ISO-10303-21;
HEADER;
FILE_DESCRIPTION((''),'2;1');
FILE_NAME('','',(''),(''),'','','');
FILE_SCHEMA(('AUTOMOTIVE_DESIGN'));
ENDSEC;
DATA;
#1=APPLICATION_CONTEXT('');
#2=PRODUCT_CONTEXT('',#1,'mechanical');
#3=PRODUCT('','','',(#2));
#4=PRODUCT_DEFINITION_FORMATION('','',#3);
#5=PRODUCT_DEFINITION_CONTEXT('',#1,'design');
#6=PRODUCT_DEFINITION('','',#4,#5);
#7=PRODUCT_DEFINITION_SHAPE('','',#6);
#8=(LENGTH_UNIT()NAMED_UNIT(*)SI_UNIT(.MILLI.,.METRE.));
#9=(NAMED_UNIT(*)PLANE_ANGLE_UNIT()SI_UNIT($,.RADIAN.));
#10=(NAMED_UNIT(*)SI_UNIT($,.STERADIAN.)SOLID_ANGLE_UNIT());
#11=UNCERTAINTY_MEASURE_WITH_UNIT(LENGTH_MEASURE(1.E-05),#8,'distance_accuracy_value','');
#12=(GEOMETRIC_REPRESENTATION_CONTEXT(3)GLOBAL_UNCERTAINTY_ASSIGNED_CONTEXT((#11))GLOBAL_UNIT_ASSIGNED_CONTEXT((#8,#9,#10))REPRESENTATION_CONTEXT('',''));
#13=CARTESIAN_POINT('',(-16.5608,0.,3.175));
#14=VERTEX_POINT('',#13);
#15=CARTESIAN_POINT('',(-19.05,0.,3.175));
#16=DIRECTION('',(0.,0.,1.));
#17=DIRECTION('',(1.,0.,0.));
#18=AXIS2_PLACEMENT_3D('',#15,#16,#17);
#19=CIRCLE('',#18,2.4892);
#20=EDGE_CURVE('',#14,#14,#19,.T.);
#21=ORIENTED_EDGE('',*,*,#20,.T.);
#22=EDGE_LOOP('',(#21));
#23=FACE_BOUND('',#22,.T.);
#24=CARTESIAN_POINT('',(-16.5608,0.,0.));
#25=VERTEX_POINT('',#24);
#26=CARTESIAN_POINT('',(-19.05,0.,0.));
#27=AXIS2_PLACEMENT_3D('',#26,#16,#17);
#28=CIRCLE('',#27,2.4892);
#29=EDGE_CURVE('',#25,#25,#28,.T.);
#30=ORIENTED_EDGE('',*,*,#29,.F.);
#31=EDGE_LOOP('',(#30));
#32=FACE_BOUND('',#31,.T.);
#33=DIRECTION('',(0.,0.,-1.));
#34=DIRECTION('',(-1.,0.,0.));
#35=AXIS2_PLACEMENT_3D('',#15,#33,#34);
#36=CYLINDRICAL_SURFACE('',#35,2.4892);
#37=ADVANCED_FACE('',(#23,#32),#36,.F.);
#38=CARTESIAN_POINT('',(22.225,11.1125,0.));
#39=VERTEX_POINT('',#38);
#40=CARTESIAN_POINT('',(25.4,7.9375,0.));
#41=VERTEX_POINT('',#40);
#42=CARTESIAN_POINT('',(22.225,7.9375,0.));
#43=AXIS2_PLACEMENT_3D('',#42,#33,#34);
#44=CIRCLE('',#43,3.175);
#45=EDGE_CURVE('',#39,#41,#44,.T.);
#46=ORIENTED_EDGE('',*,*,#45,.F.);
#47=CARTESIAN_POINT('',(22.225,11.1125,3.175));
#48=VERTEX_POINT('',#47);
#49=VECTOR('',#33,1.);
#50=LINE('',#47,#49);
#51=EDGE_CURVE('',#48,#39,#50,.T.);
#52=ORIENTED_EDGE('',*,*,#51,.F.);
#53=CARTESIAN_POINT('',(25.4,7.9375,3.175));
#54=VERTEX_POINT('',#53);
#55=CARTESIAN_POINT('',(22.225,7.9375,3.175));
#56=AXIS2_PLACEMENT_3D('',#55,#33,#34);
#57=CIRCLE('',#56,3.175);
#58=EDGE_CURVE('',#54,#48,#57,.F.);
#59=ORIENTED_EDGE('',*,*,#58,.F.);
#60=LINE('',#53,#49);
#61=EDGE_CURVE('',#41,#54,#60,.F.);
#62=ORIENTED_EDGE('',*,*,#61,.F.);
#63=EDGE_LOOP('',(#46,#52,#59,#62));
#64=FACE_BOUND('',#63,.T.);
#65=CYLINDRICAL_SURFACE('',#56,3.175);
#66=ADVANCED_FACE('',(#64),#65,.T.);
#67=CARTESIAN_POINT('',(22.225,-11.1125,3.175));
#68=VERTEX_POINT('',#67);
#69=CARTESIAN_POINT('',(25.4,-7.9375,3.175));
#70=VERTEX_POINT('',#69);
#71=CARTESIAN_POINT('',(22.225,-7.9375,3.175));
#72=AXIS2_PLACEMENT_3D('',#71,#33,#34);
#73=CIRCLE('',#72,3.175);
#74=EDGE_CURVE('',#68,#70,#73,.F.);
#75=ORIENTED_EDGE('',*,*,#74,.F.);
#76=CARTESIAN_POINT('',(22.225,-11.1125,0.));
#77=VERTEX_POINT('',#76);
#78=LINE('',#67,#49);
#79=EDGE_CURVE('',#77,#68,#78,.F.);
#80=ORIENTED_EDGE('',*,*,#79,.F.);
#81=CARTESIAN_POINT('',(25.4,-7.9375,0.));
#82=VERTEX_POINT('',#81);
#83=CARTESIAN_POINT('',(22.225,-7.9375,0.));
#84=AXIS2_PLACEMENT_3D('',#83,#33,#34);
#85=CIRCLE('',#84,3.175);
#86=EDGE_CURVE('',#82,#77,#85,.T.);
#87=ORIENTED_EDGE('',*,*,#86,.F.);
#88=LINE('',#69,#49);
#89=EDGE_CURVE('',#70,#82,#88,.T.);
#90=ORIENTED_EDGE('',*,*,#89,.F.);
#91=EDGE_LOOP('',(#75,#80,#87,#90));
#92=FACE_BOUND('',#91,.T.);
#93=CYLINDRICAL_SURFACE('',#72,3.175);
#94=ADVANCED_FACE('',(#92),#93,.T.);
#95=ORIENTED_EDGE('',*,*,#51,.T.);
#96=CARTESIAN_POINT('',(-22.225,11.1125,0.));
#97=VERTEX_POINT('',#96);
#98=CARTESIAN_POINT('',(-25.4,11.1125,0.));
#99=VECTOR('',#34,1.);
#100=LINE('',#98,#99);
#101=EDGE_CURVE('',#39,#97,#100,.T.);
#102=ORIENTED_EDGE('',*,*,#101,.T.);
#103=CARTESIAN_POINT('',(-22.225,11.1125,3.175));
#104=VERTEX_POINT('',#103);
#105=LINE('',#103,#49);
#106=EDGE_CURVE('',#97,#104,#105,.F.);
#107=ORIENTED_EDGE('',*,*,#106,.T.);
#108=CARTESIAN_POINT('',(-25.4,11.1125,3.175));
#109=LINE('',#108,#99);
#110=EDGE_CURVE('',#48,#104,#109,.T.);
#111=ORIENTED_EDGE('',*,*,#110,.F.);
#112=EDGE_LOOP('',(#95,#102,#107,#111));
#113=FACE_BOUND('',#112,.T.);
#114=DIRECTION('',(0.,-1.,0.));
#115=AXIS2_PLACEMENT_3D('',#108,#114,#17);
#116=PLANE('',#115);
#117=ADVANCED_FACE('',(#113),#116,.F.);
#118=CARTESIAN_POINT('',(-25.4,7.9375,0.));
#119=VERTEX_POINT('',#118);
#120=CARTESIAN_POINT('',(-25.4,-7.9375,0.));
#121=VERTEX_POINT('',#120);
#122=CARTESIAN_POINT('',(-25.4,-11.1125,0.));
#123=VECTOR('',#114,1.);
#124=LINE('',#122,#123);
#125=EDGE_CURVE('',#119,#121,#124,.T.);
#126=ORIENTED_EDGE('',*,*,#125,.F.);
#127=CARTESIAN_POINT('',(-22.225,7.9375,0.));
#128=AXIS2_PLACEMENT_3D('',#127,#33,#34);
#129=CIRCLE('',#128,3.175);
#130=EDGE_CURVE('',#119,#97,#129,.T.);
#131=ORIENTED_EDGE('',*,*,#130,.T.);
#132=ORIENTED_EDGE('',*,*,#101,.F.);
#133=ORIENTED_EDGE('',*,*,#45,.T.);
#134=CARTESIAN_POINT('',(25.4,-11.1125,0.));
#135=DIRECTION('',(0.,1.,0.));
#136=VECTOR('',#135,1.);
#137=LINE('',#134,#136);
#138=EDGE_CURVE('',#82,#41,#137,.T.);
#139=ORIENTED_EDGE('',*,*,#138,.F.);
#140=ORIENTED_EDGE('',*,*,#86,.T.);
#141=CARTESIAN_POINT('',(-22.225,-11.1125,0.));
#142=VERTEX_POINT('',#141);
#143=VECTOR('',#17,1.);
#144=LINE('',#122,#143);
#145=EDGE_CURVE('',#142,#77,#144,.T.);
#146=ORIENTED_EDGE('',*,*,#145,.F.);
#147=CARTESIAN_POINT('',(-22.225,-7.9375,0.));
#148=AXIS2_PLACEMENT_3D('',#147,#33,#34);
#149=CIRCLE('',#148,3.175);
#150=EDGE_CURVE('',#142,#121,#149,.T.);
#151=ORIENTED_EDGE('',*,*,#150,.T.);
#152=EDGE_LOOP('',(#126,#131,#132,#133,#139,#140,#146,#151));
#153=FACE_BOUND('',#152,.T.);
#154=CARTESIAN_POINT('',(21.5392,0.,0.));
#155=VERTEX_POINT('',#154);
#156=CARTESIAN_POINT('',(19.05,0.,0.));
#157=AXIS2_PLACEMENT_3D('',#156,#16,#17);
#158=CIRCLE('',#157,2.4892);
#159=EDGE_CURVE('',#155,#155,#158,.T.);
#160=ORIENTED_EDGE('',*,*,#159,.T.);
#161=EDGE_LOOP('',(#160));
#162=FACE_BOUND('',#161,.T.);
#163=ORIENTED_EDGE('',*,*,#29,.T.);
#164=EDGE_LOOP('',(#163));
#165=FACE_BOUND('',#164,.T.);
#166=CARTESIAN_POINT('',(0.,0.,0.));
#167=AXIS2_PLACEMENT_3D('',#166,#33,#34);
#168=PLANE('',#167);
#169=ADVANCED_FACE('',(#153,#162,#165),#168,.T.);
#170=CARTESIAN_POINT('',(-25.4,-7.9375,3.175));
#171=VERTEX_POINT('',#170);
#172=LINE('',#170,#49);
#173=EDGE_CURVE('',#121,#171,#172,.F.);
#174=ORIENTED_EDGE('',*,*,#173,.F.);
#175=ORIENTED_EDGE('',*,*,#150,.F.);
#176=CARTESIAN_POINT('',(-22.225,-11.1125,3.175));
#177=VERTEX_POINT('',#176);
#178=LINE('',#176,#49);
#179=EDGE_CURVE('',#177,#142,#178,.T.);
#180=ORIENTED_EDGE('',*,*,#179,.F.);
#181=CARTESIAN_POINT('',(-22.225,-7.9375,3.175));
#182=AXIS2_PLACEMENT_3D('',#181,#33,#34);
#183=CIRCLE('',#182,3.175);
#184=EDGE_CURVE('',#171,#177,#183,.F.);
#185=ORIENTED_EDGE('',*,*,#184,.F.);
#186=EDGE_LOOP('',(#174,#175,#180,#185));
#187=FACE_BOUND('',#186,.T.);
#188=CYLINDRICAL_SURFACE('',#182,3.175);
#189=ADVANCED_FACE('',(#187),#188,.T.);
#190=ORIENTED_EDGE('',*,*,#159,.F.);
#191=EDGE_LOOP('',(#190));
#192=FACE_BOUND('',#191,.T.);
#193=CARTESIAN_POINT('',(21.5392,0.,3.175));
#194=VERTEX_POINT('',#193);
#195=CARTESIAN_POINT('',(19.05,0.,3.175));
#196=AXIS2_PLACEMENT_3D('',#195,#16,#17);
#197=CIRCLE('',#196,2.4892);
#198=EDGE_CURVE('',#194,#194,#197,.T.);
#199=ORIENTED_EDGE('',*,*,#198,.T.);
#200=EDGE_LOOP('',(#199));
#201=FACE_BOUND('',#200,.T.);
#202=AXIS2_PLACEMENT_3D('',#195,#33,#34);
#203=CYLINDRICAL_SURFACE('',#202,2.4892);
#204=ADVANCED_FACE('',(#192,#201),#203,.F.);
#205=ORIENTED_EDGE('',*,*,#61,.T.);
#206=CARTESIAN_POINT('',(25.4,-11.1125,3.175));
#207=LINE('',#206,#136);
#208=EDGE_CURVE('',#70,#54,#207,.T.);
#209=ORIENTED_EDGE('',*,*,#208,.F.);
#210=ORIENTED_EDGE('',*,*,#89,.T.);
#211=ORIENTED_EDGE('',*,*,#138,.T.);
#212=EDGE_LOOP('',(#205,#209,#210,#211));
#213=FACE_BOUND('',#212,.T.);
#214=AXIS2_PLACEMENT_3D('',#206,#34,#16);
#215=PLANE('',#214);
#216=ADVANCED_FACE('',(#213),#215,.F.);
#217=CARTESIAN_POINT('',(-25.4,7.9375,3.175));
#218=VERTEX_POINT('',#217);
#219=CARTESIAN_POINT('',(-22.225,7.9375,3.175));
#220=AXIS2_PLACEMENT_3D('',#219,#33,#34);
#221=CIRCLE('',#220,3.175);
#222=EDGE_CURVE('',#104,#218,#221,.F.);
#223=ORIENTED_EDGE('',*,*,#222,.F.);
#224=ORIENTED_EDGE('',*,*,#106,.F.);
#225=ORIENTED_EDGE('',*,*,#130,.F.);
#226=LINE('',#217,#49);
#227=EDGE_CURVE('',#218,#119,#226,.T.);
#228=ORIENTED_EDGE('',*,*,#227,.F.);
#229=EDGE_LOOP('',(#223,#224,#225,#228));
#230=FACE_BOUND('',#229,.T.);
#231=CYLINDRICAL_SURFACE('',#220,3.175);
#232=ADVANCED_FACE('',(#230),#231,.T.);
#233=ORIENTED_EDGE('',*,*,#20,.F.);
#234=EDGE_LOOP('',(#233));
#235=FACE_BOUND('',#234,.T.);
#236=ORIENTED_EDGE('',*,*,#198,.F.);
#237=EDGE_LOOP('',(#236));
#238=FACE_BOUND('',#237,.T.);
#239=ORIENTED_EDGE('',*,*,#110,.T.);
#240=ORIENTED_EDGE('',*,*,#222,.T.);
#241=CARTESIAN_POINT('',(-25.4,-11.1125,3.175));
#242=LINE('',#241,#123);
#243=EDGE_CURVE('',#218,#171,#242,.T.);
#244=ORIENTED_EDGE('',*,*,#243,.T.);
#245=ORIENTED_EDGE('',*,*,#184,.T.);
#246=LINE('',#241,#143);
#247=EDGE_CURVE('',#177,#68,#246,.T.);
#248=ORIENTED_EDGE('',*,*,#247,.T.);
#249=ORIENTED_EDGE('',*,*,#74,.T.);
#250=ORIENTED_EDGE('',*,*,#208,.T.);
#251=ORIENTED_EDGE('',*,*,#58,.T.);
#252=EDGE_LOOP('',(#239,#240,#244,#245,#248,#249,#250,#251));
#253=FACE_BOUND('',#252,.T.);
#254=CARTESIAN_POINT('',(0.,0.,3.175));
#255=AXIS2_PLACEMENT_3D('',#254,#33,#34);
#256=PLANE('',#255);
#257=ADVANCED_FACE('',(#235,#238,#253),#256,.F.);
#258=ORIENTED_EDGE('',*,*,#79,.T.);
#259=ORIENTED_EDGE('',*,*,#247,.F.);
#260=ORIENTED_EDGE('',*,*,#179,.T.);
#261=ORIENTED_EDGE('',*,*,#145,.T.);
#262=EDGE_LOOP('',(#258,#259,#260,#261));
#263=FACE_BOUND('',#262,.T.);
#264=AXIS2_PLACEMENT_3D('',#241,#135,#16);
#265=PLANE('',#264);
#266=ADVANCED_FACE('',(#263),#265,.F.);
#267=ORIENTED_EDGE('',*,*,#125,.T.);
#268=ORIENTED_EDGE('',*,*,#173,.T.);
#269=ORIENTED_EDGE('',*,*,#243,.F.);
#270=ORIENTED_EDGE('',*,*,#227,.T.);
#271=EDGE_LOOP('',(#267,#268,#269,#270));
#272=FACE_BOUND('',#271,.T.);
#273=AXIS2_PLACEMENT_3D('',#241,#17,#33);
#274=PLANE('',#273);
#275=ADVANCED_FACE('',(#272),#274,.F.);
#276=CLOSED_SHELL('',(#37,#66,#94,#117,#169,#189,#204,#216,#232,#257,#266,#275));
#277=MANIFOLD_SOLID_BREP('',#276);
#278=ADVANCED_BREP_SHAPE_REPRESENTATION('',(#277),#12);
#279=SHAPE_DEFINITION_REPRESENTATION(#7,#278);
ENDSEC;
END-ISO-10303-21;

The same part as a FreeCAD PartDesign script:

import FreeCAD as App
import Part
import Sketcher
from FreeCAD import Vector
Q = App.Units.Quantity


def edges_at(feature, points):
    """Names of the edges that pass closest to the given points."""
    edges = feature.Shape.Edges
    near = lambda p: min(range(len(edges)), key=lambda i: edges[i].distToShape(Part.Vertex(*p))[0])
    return sorted({f"Edge{near(p) + 1}" for p in points})


def add_polygon(sketch, points):
    """Adds a closed chain of lines whose ends are joined by coincident constraints."""
    first, n = sketch.GeometryCount, len(points)
    for a, b in zip(points, points[1:] + points[:1]):
        sketch.addGeometry(Part.LineSegment(App.Vector(*a, 0), App.Vector(*b, 0)), False)
    for i in range(n):
        sketch.addConstraint(Sketcher.Constraint("Coincident", first + i, 2, first + (i + 1) % n, 1))

doc = App.newDocument("Part")
body = doc.addObject("PartDesign::Body", "Body")

# Sketch on XY plane
sketch1 = body.newObject("Sketcher::SketchObject", "Sketch")
sketch1.AttachmentSupport = (doc.getObject("XY_Plane"), [""])
sketch1.MapMode = "FlatFace"
add_polygon(sketch1, [(-25.4, 11.1), (-25.4, -11.1), (25.4, -11.1), (25.4, 11.1)])  # lines 0-3
sketch1.addGeometry(Part.Circle(Vector(-19.1, 0, 0), Vector(0, 0, 1), 2.5), False)  # 4
sketch1.addGeometry(Part.Circle(Vector(19.1, 0, 0), Vector(0, 0, 1), 2.5), False)  # 5
sketch1.addConstraint(Sketcher.Constraint("Vertical", 0))
sketch1.addConstraint(Sketcher.Constraint("Horizontal", 1))
sketch1.addConstraint(Sketcher.Constraint("Vertical", 2))
sketch1.addConstraint(Sketcher.Constraint("Horizontal", 3))
sketch1.addConstraint(Sketcher.Constraint("Equal", 4, 5))
sketch1.addConstraint(Sketcher.Constraint("Symmetric", 4, 3, 5, 3, -1, 1))
sketch1.addConstraint(Sketcher.Constraint("Symmetric", 0, 2, 2, 2, -1, 1))
sketch1.addConstraint(Sketcher.Constraint("PointOnObject", 4, 3, -1))
sketch1.addConstraint(Sketcher.Constraint("DistanceX", 1, 1, 1, 2, Q("2 in")))
sketch1.addConstraint(Sketcher.Constraint("Diameter", 4, Q("0.196 in")))
sketch1.addConstraint(Sketcher.Constraint("DistanceX", 4, 3, 5, 3, Q("1.5 in")))
sketch1.addConstraint(Sketcher.Constraint("DistanceY", 0, 2, 0, 1, Q("0.875 in")))
pad1 = body.newObject("PartDesign::Pad", "Pad")
pad1.Profile = sketch1
pad1.Length = Q("0.125 in")
doc.recompute()

fillet = body.newObject("PartDesign::Fillet", "Fillet")
fillet.Base = (pad1, edges_at(pad1, [
    (-25.4, 11.113, 1.587),
    (25.4, 11.113, 1.587),
    (25.4, -11.113, 1.587),
    (-25.4, -11.113, 1.587),
]))
fillet.Radius = Q("0.125 in")

doc.recompute()
